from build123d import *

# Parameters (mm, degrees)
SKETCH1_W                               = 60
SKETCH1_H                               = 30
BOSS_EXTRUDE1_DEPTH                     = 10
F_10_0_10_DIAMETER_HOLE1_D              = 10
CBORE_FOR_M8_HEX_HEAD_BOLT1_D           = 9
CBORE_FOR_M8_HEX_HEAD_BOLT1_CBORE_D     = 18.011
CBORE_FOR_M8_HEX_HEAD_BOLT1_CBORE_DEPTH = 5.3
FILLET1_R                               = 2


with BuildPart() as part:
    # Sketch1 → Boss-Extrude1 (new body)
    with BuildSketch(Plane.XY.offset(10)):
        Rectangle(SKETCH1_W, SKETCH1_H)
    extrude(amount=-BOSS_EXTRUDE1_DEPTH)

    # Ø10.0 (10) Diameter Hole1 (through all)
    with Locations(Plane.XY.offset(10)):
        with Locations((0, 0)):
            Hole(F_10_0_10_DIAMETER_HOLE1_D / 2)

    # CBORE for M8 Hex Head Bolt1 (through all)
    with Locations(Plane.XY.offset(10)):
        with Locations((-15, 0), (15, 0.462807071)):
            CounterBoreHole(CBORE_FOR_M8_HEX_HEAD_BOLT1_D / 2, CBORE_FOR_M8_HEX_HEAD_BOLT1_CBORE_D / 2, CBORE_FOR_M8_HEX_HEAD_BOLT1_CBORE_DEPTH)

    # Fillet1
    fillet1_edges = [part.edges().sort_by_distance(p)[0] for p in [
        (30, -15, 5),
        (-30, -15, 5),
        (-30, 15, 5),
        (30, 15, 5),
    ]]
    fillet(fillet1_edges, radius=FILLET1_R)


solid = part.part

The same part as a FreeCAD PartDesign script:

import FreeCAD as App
import Part
import Sketcher

V = App.Vector


def edges_at(feature, points):
    """Names of the edges that pass closest to the given points."""
    edges = feature.Shape.Edges
    near = lambda p: min(range(len(edges)), key=lambda i: edges[i].distToShape(Part.Vertex(*p))[0])
    return sorted({f"Edge{near(p) + 1}" for p in points})


def add_polygon(sketch, points):
    """Adds a closed chain of lines whose ends are joined by coincident constraints."""
    first, n = sketch.GeometryCount, len(points)
    for a, b in zip(points, points[1:] + points[:1]):
        sketch.addGeometry(Part.LineSegment(App.Vector(*a, 0), App.Vector(*b, 0)), False)
    for i in range(n):
        sketch.addConstraint(Sketcher.Constraint("Coincident", first + i, 2, first + (i + 1) % n, 1))

doc = App.newDocument("Part")
params = doc.addObject("Spreadsheet::Sheet", "Params")
for row, (alias, value) in enumerate([
    ("sketch1_width", "60 mm"),
    ("sketch1_height", "30 mm"),
    ("pad1_length", "10 mm"),
    ("sketch2_diameter", "10 mm"),
    ("hole_diameter", "10 mm"),
    ("sketch3_diameter", "9 mm"),
    ("hole2_diameter", "9 mm"),
    ("hole2_cbore_diameter", "18.011 mm"),
    ("hole2_cbore_depth", "5.3 mm"),
    ("fillet_radius", "2 mm"),
], start=1):
    params.set(f"A{row}", alias)
    params.set(f"B{row}", "=" + value)
    params.setAlias(f"B{row}", alias)

body = doc.addObject("PartDesign::Body", "Body")

# Sketch on XY plane
sketch1 = body.newObject("Sketcher::SketchObject", "Sketch")
sketch1.AttachmentSupport = (doc.getObject("XY_Plane"), [""])
sketch1.MapMode = "FlatFace"
sketch1.AttachmentOffset = App.Placement(V(0, 0, 10), App.Rotation())
add_polygon(sketch1, [(-30, 15), (-30, -15), (30, -15), (30, 15)])  # lines 0-3
sketch1.addConstraint([
    Sketcher.Constraint("Vertical", 0),
    Sketcher.Constraint("Horizontal", 1),
    Sketcher.Constraint("Vertical", 2),
    Sketcher.Constraint("Horizontal", 3),
    Sketcher.Constraint("Symmetric", 0, 2, 2, 2, -1, 1),
    Sketcher.Constraint("DistanceX", 1, 1, 1, 2, 60.0),
    Sketcher.Constraint("DistanceY", 0, 2, 0, 1, 30.0),
])
sketch1.setExpression("Constraints[9]", "Params.sketch1_width")
sketch1.setExpression("Constraints[10]", "Params.sketch1_height")
pad1 = body.newObject("PartDesign::Pad", "Pad")
pad1.Profile = sketch1
pad1.setExpression("Length", "Params.pad1_length")
pad1.Reversed = True

# Sketch on XY plane
sketch2 = body.newObject("Sketcher::SketchObject", "Sketch001")
sketch2.AttachmentSupport = (doc.getObject("XY_Plane"), [""])
sketch2.MapMode = "FlatFace"
sketch2.AttachmentOffset = App.Placement(V(0, 0, 10), App.Rotation())
sketch2.addGeometry(Part.Circle(V(0, 0, 0), V(0, 0, 1), 5), False)
sketch2.addConstraint([
    Sketcher.Constraint("Coincident", 0, 3, -1, 1),
    Sketcher.Constraint("Diameter", 0, 10.0),
])
sketch2.setExpression("Constraints[1]", "Params.sketch2_diameter")
doc.recompute()
hole = body.newObject("PartDesign::Hole", "Hole")
hole.Profile = sketch2
hole.ThreadType = "None"
hole.setExpression("Diameter", "Params.hole_diameter")
hole.DepthType = "ThroughAll"

# Sketch on XY plane
sketch3 = body.newObject("Sketcher::SketchObject", "Sketch002")
sketch3.AttachmentSupport = (doc.getObject("XY_Plane"), [""])
sketch3.MapMode = "FlatFace"
sketch3.AttachmentOffset = App.Placement(V(0, 0, 10), App.Rotation())
sketch3.addGeometry([
    Part.Circle(V(-15, 0, 0), V(0, 0, 1), 4.5),
    Part.Circle(V(15, 0.5, 0), V(0, 0, 1), 4.5),
], False)
sketch3.addConstraint([
    Sketcher.Constraint("Equal", 0, 1),
    Sketcher.Constraint("PointOnObject", 0, 3, -1),
    Sketcher.Constraint("Diameter", 0, 9.0),
    Sketcher.Constraint("DistanceX", 0, 3, -1, 1, 15.0),
    Sketcher.Constraint("DistanceX", -1, 1, 1, 3, 15.0),
    Sketcher.Constraint("DistanceY", -1, 1, 1, 3, 0.462807),
])
sketch3.setExpression("Constraints[2]", "Params.sketch3_diameter")
doc.recompute()
hole2 = body.newObject("PartDesign::Hole", "Hole001")
hole2.Profile = sketch3
hole2.ThreadType = "None"
hole2.setExpression("Diameter", "Params.hole2_diameter")
hole2.DepthType = "ThroughAll"
hole2.HoleCutType = "Counterbore"
hole2.setExpression("HoleCutDiameter", "Params.hole2_cbore_diameter")
hole2.setExpression("HoleCutDepth", "Params.hole2_cbore_depth")
doc.recompute()

fillet = body.newObject("PartDesign::Fillet", "Fillet")
fillet.Base = (hole2, edges_at(hole2, [
    (30, -15, 5),
    (-30, -15, 5),
    (-30, 15, 5),
    (30, 15, 5),
]))
fillet.setExpression("Radius", "Params.fillet_radius")

doc.recompute()
